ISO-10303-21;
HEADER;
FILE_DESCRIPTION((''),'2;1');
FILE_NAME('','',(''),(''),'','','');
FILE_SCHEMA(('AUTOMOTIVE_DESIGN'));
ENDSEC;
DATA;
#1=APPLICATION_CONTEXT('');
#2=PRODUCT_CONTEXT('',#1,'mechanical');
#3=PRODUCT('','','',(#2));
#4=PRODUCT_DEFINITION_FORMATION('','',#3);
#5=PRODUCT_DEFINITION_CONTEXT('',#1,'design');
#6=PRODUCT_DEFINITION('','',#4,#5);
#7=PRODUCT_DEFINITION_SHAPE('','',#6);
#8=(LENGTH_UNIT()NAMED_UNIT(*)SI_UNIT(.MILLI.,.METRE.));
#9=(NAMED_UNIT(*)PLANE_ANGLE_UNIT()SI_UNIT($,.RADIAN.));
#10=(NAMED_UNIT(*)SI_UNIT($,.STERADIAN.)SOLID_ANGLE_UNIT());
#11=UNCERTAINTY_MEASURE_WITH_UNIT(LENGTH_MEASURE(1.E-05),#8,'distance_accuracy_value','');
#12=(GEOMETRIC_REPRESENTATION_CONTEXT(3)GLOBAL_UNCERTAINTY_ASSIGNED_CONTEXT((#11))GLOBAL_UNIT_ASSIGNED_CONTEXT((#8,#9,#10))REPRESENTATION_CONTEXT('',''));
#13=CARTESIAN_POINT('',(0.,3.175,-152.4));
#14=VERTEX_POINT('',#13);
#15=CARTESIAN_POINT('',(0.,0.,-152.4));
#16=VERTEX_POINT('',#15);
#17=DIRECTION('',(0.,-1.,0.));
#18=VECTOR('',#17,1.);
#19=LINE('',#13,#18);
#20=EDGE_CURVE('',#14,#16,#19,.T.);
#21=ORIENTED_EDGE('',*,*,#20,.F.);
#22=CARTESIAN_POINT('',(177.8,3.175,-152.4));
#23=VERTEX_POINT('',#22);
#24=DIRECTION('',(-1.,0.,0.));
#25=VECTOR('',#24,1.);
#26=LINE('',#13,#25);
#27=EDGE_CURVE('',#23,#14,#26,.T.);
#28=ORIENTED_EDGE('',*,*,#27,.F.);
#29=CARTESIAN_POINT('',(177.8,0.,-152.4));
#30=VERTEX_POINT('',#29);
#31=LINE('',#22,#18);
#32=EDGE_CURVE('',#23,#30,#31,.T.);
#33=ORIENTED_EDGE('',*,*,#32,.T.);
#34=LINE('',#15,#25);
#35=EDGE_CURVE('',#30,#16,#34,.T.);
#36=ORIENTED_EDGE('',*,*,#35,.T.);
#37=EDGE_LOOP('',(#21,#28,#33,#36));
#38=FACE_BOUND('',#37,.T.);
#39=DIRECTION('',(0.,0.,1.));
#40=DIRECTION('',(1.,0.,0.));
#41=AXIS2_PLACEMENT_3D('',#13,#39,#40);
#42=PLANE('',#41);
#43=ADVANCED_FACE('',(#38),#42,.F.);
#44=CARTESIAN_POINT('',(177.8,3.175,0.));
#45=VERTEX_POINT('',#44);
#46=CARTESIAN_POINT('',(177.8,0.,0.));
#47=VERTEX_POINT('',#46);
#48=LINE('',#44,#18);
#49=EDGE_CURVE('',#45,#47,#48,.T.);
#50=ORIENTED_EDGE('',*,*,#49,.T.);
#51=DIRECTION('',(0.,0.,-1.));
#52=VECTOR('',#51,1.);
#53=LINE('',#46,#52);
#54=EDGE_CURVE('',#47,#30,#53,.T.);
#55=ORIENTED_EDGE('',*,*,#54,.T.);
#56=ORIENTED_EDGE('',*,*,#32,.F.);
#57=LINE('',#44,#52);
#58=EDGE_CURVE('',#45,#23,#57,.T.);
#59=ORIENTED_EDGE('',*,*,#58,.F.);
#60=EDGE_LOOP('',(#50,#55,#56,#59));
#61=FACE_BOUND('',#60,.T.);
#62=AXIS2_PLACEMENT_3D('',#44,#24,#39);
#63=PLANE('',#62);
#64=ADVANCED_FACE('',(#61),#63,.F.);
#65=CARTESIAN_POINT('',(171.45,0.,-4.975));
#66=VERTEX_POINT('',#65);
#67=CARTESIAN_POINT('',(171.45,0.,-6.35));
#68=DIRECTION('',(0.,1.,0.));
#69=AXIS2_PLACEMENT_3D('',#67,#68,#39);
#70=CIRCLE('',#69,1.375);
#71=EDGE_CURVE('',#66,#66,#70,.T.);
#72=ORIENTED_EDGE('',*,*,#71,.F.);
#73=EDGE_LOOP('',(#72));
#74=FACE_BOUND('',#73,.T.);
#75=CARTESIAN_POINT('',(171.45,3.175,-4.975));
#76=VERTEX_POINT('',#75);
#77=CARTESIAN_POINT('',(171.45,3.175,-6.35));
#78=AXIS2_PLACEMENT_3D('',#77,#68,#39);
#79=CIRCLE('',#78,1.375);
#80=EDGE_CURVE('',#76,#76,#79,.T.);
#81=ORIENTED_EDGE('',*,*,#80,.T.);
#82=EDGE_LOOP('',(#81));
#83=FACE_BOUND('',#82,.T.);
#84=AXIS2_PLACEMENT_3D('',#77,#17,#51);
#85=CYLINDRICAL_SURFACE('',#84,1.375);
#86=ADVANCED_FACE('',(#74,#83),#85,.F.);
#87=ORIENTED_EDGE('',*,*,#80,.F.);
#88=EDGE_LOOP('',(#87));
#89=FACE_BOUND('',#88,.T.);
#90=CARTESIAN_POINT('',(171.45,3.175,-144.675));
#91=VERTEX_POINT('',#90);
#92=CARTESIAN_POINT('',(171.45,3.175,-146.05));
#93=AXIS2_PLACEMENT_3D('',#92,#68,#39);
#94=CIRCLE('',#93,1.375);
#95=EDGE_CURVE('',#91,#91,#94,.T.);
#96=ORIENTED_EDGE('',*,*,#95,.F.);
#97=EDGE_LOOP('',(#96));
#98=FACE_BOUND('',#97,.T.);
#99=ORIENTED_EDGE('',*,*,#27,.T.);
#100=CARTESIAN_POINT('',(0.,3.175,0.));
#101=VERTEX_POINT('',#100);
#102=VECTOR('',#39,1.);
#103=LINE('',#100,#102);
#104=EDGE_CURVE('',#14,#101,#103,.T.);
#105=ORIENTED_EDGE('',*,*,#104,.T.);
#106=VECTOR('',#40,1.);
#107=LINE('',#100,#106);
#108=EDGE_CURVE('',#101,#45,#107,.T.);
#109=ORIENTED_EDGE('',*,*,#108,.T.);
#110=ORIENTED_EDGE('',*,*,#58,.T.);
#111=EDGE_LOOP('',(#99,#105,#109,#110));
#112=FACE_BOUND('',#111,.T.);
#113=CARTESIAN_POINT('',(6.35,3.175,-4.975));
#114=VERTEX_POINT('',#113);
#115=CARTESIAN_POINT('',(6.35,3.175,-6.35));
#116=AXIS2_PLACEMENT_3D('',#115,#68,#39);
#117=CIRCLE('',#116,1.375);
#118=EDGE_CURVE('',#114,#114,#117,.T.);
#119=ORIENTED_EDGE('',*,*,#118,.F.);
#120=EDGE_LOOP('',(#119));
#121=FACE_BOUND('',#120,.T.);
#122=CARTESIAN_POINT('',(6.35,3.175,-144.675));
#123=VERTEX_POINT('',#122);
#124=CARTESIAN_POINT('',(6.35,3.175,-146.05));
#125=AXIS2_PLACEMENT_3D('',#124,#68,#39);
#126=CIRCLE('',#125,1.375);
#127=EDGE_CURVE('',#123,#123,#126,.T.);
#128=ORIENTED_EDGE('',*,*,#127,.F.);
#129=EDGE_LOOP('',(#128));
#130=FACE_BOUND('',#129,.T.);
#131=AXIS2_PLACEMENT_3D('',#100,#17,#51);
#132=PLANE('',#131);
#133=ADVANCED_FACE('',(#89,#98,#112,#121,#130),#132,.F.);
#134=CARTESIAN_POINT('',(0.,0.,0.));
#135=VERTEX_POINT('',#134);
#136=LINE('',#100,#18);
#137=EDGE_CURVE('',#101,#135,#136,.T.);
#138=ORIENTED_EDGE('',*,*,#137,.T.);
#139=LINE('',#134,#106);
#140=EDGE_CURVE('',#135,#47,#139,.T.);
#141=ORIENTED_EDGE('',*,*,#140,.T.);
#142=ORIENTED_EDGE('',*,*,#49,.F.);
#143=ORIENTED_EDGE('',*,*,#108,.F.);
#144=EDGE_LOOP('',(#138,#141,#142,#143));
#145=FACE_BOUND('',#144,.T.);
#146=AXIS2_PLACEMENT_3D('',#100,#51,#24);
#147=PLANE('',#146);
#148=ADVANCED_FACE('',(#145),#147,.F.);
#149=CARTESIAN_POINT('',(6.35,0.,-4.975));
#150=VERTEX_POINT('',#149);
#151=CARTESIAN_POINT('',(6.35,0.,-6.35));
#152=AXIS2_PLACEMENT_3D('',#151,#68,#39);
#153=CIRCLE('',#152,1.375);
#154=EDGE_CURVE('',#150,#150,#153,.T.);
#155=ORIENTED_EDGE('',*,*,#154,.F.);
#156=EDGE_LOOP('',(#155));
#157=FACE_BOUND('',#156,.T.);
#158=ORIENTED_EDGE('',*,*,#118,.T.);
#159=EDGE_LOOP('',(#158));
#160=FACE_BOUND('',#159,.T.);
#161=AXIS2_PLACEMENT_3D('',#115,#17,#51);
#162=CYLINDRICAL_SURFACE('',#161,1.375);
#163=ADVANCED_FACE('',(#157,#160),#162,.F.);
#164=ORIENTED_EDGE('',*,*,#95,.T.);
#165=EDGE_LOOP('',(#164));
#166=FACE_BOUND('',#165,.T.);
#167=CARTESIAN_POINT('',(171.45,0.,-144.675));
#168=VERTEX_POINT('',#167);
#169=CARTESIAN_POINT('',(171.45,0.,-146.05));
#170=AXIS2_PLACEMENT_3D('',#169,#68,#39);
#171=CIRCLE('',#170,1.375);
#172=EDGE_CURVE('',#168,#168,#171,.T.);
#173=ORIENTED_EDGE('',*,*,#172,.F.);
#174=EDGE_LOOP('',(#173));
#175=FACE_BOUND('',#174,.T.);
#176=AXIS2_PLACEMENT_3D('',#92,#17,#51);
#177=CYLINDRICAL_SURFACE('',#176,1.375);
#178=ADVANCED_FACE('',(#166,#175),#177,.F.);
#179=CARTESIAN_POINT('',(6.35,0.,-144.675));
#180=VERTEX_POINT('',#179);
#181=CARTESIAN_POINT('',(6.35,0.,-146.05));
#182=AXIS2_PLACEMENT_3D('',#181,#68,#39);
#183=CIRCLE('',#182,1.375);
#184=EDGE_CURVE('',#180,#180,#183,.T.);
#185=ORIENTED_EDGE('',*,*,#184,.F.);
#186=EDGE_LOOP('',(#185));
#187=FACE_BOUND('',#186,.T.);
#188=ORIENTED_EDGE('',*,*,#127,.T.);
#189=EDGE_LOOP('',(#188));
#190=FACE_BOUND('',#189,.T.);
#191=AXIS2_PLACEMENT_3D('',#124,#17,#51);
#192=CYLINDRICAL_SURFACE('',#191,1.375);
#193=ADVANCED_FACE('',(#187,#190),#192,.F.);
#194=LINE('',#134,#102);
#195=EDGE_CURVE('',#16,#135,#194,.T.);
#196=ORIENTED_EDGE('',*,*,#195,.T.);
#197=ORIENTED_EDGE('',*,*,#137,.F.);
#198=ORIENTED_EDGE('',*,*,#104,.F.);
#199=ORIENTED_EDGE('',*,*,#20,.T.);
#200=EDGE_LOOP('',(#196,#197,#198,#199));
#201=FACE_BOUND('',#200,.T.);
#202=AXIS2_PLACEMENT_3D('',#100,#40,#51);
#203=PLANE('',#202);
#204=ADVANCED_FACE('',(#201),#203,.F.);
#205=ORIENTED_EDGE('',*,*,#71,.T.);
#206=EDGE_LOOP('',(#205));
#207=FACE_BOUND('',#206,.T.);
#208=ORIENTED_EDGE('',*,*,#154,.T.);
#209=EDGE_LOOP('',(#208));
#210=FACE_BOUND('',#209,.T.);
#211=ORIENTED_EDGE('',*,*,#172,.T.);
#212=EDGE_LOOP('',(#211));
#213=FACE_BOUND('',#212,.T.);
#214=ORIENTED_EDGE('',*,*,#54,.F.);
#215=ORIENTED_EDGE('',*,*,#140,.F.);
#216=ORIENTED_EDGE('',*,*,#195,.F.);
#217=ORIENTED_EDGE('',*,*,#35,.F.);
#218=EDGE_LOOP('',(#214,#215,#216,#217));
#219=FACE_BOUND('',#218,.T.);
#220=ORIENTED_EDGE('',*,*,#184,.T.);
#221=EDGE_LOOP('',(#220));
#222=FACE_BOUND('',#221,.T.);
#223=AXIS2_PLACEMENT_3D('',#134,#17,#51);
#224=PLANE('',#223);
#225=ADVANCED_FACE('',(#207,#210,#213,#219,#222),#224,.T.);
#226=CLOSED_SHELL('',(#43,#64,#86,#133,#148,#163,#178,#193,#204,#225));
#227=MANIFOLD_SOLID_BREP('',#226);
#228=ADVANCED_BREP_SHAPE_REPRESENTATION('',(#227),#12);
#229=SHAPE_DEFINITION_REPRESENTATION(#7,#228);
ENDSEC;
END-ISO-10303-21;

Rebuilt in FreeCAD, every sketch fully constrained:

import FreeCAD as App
import Part
import Sketcher
from FreeCAD import Vector
Q = App.Units.Quantity


def add_polygon(sketch, points):
    """Adds a closed chain of lines whose ends are joined by coincident constraints."""
    first, n = sketch.GeometryCount, len(points)
    for a, b in zip(points, points[1:] + points[:1]):
        sketch.addGeometry(Part.LineSegment(App.Vector(*a, 0), App.Vector(*b, 0)), False)
    for i in range(n):
        sketch.addConstraint(Sketcher.Constraint("Coincident", first + i, 2, first + (i + 1) % n, 1))

doc = App.newDocument("Part")
body = doc.addObject("PartDesign::Body", "Body")

# Sketch on XZ plane
sketch1 = body.newObject("Sketcher::SketchObject", "Sketch")
sketch1.AttachmentSupport = (doc.getObject("XZ_Plane"), [""])
sketch1.MapMode = "FlatFace"
add_polygon(sketch1, [(0, -152.4), (0, 0), (177.8, 0), (177.8, -152.4)])  # lines 0-3
sketch1.addGeometry(Part.Circle(Vector(6.3, -6.3, 0), Vector(0, 0, 1), 1.4), False)  # 4
sketch1.addGeometry(Part.Circle(Vector(171.4, -6.3, 0), Vector(0, 0, 1), 1.4), False)  # 5
sketch1.addGeometry(Part.Circle(Vector(6.3, -146.1, 0), Vector(0, 0, 1), 1.4), False)  # 6
sketch1.addGeometry(Part.Circle(Vector(171.4, -146.1, 0), Vector(0, 0, 1), 1.4), False)  # 7
sketch1.addConstraint([
    Sketcher.Constraint("Vertical", 0),
    Sketcher.Constraint("Horizontal", 1),
    Sketcher.Constraint("Vertical", 2),
    Sketcher.Constraint("Horizontal", 3),
    Sketcher.Constraint("Coincident", 0, 2, -1, 1),
    Sketcher.Constraint("Equal", 4, 5),
    Sketcher.Constraint("Equal", 5, 6),
    Sketcher.Constraint("Equal", 6, 7),
    Sketcher.Constraint("Horizontal", 4, 3, 5, 3),
    Sketcher.Constraint("Horizontal", 6, 3, 7, 3),
    Sketcher.Constraint("Vertical", 4, 3, 6, 3),
    Sketcher.Constraint("Vertical", 5, 3, 7, 3),
    Sketcher.Constraint("DistanceX", 1, 1, 1, 2, Q("7 in")),
    Sketcher.Constraint("DistanceY", 0, 1, 0, 2, Q("6 in")),
    Sketcher.Constraint("DistanceX", 4, 3, 5, 3, Q("6.5 in")),
    Sketcher.Constraint("DistanceY", 6, 3, 4, 3, Q("5.5 in")),
    Sketcher.Constraint("Diameter", 4, Q("2.75 mm")),
    Sketcher.Constraint("DistanceX", -1, 1, 4, 3, Q("0.25 in")),
    Sketcher.Constraint("DistanceY", 4, 3, -1, 1, Q("0.25 in")),
])
pad1 = body.newObject("PartDesign::Pad", "Pad")
pad1.Profile = sketch1
pad1.Length = Q("0.125 in")
pad1.Reversed = True

doc.recompute()
